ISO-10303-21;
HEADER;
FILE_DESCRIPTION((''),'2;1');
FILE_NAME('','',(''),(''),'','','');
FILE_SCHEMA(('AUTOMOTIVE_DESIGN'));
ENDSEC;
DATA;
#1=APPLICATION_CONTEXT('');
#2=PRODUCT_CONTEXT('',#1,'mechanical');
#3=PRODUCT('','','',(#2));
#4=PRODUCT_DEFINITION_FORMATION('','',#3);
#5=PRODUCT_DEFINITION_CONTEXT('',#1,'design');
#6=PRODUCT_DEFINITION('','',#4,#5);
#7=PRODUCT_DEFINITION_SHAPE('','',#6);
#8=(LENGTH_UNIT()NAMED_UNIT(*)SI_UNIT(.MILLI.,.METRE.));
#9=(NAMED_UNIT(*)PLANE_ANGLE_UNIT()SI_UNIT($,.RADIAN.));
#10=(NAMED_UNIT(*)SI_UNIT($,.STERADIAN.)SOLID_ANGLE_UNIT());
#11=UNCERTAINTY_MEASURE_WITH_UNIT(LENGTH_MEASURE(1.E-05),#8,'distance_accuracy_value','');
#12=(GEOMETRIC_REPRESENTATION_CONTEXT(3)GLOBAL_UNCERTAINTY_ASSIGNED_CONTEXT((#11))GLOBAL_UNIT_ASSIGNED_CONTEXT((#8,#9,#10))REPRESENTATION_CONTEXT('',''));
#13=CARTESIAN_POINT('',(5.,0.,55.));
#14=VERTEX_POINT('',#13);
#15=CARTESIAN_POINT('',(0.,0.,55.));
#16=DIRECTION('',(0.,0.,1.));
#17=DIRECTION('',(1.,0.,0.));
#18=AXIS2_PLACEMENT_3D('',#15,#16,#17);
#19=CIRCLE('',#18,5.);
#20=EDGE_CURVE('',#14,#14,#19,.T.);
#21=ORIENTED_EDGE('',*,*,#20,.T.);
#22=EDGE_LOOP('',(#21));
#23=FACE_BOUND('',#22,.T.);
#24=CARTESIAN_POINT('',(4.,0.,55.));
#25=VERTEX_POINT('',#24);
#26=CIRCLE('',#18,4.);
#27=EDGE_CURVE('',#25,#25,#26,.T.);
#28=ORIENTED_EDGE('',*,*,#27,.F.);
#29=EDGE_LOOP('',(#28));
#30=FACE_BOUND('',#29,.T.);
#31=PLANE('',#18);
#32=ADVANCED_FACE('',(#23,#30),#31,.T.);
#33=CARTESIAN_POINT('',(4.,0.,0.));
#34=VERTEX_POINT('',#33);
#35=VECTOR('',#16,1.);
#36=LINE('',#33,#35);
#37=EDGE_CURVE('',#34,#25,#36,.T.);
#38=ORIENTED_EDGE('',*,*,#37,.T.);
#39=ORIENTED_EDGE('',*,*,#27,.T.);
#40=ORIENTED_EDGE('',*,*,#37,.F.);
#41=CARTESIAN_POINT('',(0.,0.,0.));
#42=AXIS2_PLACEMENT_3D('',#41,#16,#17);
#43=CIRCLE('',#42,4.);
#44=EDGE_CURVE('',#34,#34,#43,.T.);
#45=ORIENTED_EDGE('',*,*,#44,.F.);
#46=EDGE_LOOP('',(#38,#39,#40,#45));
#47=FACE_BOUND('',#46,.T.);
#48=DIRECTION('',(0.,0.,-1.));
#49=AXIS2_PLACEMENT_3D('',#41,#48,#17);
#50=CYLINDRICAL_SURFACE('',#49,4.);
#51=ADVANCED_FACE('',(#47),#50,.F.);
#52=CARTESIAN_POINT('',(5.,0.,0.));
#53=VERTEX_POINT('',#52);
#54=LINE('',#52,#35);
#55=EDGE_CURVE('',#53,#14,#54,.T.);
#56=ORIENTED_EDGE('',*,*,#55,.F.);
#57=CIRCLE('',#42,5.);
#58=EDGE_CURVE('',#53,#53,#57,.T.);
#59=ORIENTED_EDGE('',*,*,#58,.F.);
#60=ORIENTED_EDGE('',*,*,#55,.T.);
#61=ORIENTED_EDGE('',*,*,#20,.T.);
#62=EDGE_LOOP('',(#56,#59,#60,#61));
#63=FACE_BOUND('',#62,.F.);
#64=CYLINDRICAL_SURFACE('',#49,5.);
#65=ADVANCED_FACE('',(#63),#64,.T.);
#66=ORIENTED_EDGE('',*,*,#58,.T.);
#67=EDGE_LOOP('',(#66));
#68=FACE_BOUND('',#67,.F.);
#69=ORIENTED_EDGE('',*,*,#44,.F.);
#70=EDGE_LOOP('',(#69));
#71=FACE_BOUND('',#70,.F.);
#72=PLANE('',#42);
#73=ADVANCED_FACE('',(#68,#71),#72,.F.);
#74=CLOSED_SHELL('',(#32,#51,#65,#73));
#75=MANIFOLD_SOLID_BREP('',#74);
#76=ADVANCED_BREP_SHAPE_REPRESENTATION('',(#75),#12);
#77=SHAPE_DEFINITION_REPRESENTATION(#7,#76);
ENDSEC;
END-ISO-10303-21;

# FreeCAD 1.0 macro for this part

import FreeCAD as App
import Part
import Sketcher

V = App.Vector
Q = App.Units.Quantity

doc = App.newDocument("Part")
body = doc.addObject("PartDesign::Body", "Body")

sketch1 = doc.addObject("Sketcher::SketchObject", "Sketch")
body.addObject(sketch1)
sketch1.AttachmentSupport = (doc.XY_Plane, [""])
sketch1.MapMode = "FlatFace"
sketch1.addGeometry([
    Part.Circle(V(0, 0, 0), V(0, 0, 1), 5),
    Part.Circle(V(0, 0, 0), V(0, 0, 1), 4),
], False)
sketch1.addConstraint([
    Sketcher.Constraint("Coincident", 0, 3, -1, 1),
    Sketcher.Constraint("Coincident", 1, 3, -1, 1),
    Sketcher.Constraint("Diameter", 0, Q("10 mm")),
    Sketcher.Constraint("Diameter", 1, Q("8 mm")),
])
pad1 = doc.addObject("PartDesign::Pad", "Pad")
body.addObject(pad1)
pad1.Profile = sketch1
pad1.Length = 55

doc.recompute()
